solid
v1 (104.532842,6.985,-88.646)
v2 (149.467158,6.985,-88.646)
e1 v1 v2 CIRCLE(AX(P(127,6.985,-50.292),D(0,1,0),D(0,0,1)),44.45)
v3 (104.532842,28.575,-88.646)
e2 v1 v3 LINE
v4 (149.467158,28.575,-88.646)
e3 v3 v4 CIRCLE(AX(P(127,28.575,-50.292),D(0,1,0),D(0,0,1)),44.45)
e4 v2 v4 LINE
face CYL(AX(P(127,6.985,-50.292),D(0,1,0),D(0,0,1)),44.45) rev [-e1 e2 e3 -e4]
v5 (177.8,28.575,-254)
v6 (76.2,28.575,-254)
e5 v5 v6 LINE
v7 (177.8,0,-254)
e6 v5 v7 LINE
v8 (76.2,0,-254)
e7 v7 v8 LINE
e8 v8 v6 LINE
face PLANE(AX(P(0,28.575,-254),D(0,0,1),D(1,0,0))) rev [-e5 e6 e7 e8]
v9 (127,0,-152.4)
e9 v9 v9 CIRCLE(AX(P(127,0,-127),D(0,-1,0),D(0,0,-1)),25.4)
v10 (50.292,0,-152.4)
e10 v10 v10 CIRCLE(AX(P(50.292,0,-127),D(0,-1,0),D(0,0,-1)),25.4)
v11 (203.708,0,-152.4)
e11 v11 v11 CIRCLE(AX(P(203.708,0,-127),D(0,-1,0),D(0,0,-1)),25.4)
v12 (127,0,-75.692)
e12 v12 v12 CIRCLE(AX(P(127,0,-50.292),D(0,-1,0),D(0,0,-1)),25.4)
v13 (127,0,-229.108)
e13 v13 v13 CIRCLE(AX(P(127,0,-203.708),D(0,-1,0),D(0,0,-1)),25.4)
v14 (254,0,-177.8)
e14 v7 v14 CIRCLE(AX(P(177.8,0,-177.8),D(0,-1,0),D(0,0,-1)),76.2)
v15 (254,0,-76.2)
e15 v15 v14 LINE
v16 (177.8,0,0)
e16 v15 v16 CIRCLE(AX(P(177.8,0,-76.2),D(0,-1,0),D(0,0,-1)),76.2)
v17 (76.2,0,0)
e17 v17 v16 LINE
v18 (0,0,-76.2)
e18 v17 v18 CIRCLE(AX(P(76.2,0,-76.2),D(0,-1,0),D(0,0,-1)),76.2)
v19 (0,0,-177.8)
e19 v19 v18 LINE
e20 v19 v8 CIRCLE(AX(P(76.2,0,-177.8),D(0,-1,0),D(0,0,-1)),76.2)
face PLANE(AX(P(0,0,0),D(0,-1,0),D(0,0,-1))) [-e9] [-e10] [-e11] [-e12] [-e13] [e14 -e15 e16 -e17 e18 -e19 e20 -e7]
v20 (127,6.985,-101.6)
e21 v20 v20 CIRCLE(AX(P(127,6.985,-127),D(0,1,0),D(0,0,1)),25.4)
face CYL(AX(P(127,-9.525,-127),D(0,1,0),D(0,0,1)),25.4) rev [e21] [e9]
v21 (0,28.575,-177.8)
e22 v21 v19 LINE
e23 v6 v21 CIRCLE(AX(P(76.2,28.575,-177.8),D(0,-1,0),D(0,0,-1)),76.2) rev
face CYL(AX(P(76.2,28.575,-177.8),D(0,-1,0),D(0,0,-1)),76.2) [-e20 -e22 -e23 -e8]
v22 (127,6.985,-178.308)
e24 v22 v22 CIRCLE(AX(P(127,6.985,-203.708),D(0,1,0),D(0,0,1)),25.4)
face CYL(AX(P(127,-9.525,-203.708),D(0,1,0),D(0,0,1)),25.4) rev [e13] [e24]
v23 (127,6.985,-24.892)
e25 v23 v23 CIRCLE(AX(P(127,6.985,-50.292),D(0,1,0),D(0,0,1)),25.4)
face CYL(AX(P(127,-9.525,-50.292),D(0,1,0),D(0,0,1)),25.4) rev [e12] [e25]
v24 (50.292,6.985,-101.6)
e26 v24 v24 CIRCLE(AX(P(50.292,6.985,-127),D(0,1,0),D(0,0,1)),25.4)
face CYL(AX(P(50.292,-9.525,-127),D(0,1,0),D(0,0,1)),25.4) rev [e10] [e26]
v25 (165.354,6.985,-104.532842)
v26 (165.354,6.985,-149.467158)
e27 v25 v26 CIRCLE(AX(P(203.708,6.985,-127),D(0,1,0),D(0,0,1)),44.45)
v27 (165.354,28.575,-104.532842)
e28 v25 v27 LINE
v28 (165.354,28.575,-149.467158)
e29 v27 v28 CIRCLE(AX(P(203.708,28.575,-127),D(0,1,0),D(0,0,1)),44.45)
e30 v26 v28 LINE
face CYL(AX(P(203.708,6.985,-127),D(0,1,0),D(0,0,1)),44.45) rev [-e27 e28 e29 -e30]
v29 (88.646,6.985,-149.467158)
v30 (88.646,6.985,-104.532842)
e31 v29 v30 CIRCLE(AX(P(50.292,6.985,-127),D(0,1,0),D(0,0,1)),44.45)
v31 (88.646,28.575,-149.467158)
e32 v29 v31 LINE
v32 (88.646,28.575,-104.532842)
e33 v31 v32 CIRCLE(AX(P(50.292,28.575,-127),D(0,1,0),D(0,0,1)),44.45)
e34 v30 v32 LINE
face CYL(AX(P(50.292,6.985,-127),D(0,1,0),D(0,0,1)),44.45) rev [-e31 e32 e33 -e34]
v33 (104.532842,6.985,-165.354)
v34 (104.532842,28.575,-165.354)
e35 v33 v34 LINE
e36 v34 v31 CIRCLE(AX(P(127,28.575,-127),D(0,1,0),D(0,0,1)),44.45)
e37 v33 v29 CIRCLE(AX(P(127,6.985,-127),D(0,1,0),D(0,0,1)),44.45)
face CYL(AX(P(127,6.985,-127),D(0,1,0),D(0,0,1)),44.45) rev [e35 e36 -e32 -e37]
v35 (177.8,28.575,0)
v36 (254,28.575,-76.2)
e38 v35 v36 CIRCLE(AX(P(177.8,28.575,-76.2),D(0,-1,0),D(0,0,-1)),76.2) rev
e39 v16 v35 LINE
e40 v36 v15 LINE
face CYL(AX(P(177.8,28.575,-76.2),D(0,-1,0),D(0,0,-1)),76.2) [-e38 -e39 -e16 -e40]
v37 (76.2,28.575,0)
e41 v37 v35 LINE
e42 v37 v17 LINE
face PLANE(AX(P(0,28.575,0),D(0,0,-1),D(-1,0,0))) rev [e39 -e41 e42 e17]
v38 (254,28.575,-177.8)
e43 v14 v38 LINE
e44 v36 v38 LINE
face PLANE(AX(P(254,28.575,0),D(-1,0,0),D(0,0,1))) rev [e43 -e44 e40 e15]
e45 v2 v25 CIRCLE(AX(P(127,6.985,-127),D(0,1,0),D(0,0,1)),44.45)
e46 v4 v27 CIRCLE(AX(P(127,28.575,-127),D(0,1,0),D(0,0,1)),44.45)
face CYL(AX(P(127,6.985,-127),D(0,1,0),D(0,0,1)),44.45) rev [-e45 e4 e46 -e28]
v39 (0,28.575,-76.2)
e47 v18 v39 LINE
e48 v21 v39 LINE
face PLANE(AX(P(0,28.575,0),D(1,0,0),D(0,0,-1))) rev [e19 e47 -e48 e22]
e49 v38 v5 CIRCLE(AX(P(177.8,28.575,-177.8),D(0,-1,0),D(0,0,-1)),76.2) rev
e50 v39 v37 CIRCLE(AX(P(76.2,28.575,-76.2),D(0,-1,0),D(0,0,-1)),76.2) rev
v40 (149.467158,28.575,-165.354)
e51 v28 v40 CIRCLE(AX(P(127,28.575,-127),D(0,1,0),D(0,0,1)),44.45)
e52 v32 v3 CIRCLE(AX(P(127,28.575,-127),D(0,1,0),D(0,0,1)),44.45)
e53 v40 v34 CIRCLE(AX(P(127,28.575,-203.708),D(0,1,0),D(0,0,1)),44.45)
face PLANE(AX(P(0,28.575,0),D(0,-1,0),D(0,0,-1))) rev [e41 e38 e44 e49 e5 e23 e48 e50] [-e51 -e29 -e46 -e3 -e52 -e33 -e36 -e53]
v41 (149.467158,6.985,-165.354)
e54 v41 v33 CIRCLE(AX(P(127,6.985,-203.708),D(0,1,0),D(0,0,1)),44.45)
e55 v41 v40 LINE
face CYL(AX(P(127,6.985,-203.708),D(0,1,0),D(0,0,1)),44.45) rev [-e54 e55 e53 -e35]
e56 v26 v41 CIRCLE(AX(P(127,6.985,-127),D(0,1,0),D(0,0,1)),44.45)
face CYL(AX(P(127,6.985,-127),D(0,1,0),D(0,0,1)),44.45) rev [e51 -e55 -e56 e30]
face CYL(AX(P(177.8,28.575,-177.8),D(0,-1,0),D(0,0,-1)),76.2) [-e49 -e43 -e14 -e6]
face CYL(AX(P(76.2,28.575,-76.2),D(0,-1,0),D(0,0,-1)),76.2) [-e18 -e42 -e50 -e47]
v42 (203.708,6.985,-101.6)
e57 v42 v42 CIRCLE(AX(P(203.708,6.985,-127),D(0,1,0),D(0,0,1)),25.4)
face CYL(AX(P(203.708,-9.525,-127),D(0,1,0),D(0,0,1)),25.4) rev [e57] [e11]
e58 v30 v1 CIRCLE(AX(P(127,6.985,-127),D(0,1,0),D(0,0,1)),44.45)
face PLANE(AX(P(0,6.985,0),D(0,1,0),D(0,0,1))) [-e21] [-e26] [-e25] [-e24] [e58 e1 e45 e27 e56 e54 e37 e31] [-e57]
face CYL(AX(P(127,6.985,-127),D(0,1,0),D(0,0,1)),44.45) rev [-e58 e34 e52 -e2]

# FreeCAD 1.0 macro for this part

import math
import FreeCAD as App
import Part
import Sketcher
from FreeCAD import Vector
Q = App.Units.Quantity


def edges_at(feature, points):
    """Names of the edges that pass closest to the given points."""
    edges = feature.Shape.Edges
    near = lambda p: min(range(len(edges)), key=lambda i: edges[i].distToShape(Part.Vertex(*p))[0])
    return sorted({f"Edge{near(p) + 1}" for p in points})

doc = App.newDocument("Part")
body = doc.addObject("PartDesign::Body", "Body")

sketch1 = body.newObject("Sketcher::SketchObject", "Sketch")
sketch1.AttachmentSupport = (doc.getObject("XZ_Plane"), [""])
sketch1.MapMode = "FlatFace"
sketch1.addGeometry([
    Part.LineSegment(Vector(0, -254, 0), Vector(0, 0, 0)),
    Part.LineSegment(Vector(0, 0, 0), Vector(254, 0, 0)),
    Part.LineSegment(Vector(254, 0, 0), Vector(254, -254, 0)),
    Part.LineSegment(Vector(254, -254, 0), Vector(0, -254, 0)),
], False)
sketch1.addConstraint([
    Sketcher.Constraint("Coincident", 0, 2, 1, 1),
    Sketcher.Constraint("Coincident", 1, 2, 2, 1),
    Sketcher.Constraint("Coincident", 2, 2, 3, 1),
    Sketcher.Constraint("Coincident", 3, 2, 0, 1),
    Sketcher.Constraint("Vertical", 0),
    Sketcher.Constraint("Horizontal", 1),
    Sketcher.Constraint("Vertical", 2),
    Sketcher.Constraint("Horizontal", 3),
    Sketcher.Constraint("Coincident", 0, 2, -1, 1),
    Sketcher.Constraint("Equal", 3, 0),
    Sketcher.Constraint("DistanceX", 1, 1, 1, 2, Q("10 in")),
])
pad1 = body.newObject("PartDesign::Pad", "Pad")
pad1.Profile = sketch1
pad1.Length = Q("1.125 in")
pad1.Reversed = True

sketch2 = body.newObject("Sketcher::SketchObject", "Sketch001")
sketch2.AttachmentSupport = (doc.getObject("XZ_Plane"), [""])
sketch2.MapMode = "FlatFace"
sketch2.AttachmentOffset = App.Placement(Vector(0, 0, -1.125 * 25.4), App.Rotation())
sketch2.addGeometry([
    Part.ArcOfCircle(Part.Circle(Vector(204, -127, 0), Vector(0, 0, 1), 44), math.radians(-150), math.radians(150)),
    Part.ArcOfCircle(Part.Circle(Vector(127, -127, 0), Vector(0, 0, 1), 44), math.radians(-60), math.radians(-30)),
    Part.ArcOfCircle(Part.Circle(Vector(127, -204, 0), Vector(0, 0, 1), 44), math.radians(120), math.radians(420)),
    Part.ArcOfCircle(Part.Circle(Vector(127, -127, 0), Vector(0, 0, 1), 44), math.radians(-150), math.radians(-120)),
    Part.ArcOfCircle(Part.Circle(Vector(50, -127, 0), Vector(0, 0, 1), 44), math.radians(30), math.radians(330)),
    Part.ArcOfCircle(Part.Circle(Vector(127, -127, 0), Vector(0, 0, 1), 44), math.radians(120), math.radians(150)),
    Part.ArcOfCircle(Part.Circle(Vector(127, -50, 0), Vector(0, 0, 1), 44), math.radians(-60), math.radians(240)),
    Part.ArcOfCircle(Part.Circle(Vector(127, -127, 0), Vector(0, 0, 1), 44), math.radians(30), math.radians(60)),
], False)
sketch2.addConstraint([
    Sketcher.Constraint("Coincident", 0, 1, 1, 2),
    Sketcher.Constraint("Coincident", 1, 1, 2, 2),
    Sketcher.Constraint("Coincident", 2, 1, 3, 2),
    Sketcher.Constraint("Coincident", 3, 1, 4, 2),
    Sketcher.Constraint("Coincident", 4, 1, 5, 2),
    Sketcher.Constraint("Coincident", 5, 1, 6, 2),
    Sketcher.Constraint("Coincident", 6, 1, 7, 2),
    Sketcher.Constraint("Coincident", 7, 1, 0, 2),
    Sketcher.Constraint("Coincident", 3, 3, 1, 3),
    Sketcher.Constraint("Coincident", 5, 3, 1, 3),
    Sketcher.Constraint("Coincident", 7, 3, 1, 3),
    Sketcher.Constraint("Equal", 0, 1),
    Sketcher.Constraint("Equal", 1, 2),
    Sketcher.Constraint("Equal", 2, 3),
    Sketcher.Constraint("Equal", 3, 4),
    Sketcher.Constraint("Equal", 4, 5),
    Sketcher.Constraint("Equal", 5, 6),
    Sketcher.Constraint("Equal", 6, 7),
    Sketcher.Constraint("Horizontal", 0, 3, 1, 3),
    Sketcher.Constraint("Horizontal", 3, 3, 4, 3),
    Sketcher.Constraint("Horizontal", 1, 1, 2, 1),
    Sketcher.Constraint("Horizontal", 0, 1, 3, 1),
    Sketcher.Constraint("Horizontal", 5, 1, 6, 1),
    Sketcher.Constraint("Vertical", 2, 1, 5, 1),
    Sketcher.Constraint("Radius", 0, Q("1.75 in")),
    Sketcher.Constraint("DistanceY", 0, 3, -1, 1, Q("5 in")),
    Sketcher.Constraint("DistanceX", -1, 1, 1, 3, Q("5 in")),
    Sketcher.Constraint("DistanceX", -1, 1, 0, 3, Q("8.02 in")),
    Sketcher.Constraint("DistanceY", 2, 3, -1, 1, Q("8.02 in")),
])
pocket1 = body.newObject("PartDesign::Pocket", "Pocket")
pocket1.Profile = sketch2
pocket1.Length = Q("0.85 in")
pocket1.Reversed = True

sketch3 = body.newObject("Sketcher::SketchObject", "Sketch002")
sketch3.AttachmentSupport = (doc.getObject("XZ_Plane"), [""])
sketch3.MapMode = "FlatFace"
sketch3.AttachmentOffset = App.Placement(Vector(0, 0, -0.275 * 25.4), App.Rotation())
sketch3.addGeometry([
    Part.Circle(Vector(127, -127, 0), Vector(0, 0, 1), 25),
    Part.Circle(Vector(127, -50, 0), Vector(0, 0, 1), 25),
    Part.Circle(Vector(50, -127, 0), Vector(0, 0, 1), 25),
    Part.Circle(Vector(127, -204, 0), Vector(0, 0, 1), 25),
    Part.Circle(Vector(204, -127, 0), Vector(0, 0, 1), 25),
], False)
sketch3.addConstraint([
    Sketcher.Constraint("Equal", 0, 1),
    Sketcher.Constraint("Equal", 1, 2),
    Sketcher.Constraint("Equal", 2, 3),
    Sketcher.Constraint("Equal", 3, 4),
    Sketcher.Constraint("Horizontal", 0, 3, 2, 3),
    Sketcher.Constraint("Horizontal", 2, 3, 4, 3),
    Sketcher.Constraint("Vertical", 0, 3, 1, 3),
    Sketcher.Constraint("Vertical", 1, 3, 3, 3),
    Sketcher.Constraint("Diameter", 0, Q("2 in")),
    Sketcher.Constraint("DistanceX", -1, 1, 0, 3, Q("5 in")),
    Sketcher.Constraint("DistanceY", 0, 3, -1, 1, Q("5 in")),
    Sketcher.Constraint("DistanceY", 1, 3, -1, 1, Q("1.98 in")),
    Sketcher.Constraint("DistanceX", -1, 1, 2, 3, Q("1.98 in")),
    Sketcher.Constraint("DistanceY", 3, 3, -1, 1, Q("8.02 in")),
    Sketcher.Constraint("DistanceX", -1, 1, 4, 3, Q("8.02 in")),
])
pocket2 = body.newObject("PartDesign::Pocket", "Pocket001")
pocket2.Profile = sketch3
pocket2.Length = Q("0.65 in")
pocket2.Reversed = True
doc.recompute()

fillet = body.newObject("PartDesign::Fillet", "Fillet")
fillet.Base = (pocket2, edges_at(pocket2, [
    (0, 14.287, -254),
    (254, 14.287, -254),
    (254, 14.287, 0),
    (0, 14.287, 0),
]))
fillet.Radius = Q("3 in")

doc.recompute()
